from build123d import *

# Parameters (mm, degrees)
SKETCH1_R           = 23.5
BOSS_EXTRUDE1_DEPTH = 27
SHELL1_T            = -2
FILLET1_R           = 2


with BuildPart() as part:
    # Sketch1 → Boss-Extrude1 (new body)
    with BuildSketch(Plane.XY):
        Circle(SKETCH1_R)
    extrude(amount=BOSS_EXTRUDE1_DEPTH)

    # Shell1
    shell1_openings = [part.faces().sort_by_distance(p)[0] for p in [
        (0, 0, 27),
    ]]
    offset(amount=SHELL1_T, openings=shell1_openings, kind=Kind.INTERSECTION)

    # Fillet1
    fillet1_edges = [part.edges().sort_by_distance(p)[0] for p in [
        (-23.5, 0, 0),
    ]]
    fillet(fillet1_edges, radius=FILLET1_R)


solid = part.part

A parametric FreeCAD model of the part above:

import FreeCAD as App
import Part
import Sketcher

V = App.Vector
Q = App.Units.Quantity


def edges_at(feature, points):
    """Names of the edges that pass closest to the given points."""
    edges = feature.Shape.Edges
    near = lambda p: min(range(len(edges)), key=lambda i: edges[i].distToShape(Part.Vertex(*p))[0])
    return sorted({f"Edge{near(p) + 1}" for p in points})


def faces_at(feature, points):
    """Names of the faces that lie closest to the given points."""
    faces = feature.Shape.Faces
    near = lambda p: min(range(len(faces)), key=lambda i: faces[i].distToShape(Part.Vertex(*p))[0])
    return sorted({f"Face{near(p) + 1}" for p in points})

doc = App.newDocument("Part")
body = doc.addObject("PartDesign::Body", "Body")

# Sketch on XY plane
sketch1 = body.newObject("Sketcher::SketchObject", "Sketch")
sketch1.AttachmentSupport = (doc.getObject("XY_Plane"), [""])
sketch1.MapMode = "FlatFace"
sketch1.addGeometry(Part.Circle(V(0, 0, 0), V(0, 0, 1), 23.5), False)
sketch1.addConstraint([
    Sketcher.Constraint("Coincident", 0, 3, -1, 1),
    Sketcher.Constraint("Diameter", 0, Q("47 mm")),
])
pad1 = body.newObject("PartDesign::Pad", "Pad")
pad1.Profile = sketch1
pad1.Length = 27
doc.recompute()

thickness = body.newObject("PartDesign::Thickness", "Thickness")
thickness.Base = (pad1, faces_at(pad1, [(0, 0, 27)]))
thickness.Value = 2
thickness.Reversed = True
thickness.Join = "Intersection"
doc.recompute()

fillet = body.newObject("PartDesign::Fillet", "Fillet")
fillet.Base = (thickness, edges_at(thickness, [(-23.5, 0, 0)]))
fillet.Radius = 2

doc.recompute()
